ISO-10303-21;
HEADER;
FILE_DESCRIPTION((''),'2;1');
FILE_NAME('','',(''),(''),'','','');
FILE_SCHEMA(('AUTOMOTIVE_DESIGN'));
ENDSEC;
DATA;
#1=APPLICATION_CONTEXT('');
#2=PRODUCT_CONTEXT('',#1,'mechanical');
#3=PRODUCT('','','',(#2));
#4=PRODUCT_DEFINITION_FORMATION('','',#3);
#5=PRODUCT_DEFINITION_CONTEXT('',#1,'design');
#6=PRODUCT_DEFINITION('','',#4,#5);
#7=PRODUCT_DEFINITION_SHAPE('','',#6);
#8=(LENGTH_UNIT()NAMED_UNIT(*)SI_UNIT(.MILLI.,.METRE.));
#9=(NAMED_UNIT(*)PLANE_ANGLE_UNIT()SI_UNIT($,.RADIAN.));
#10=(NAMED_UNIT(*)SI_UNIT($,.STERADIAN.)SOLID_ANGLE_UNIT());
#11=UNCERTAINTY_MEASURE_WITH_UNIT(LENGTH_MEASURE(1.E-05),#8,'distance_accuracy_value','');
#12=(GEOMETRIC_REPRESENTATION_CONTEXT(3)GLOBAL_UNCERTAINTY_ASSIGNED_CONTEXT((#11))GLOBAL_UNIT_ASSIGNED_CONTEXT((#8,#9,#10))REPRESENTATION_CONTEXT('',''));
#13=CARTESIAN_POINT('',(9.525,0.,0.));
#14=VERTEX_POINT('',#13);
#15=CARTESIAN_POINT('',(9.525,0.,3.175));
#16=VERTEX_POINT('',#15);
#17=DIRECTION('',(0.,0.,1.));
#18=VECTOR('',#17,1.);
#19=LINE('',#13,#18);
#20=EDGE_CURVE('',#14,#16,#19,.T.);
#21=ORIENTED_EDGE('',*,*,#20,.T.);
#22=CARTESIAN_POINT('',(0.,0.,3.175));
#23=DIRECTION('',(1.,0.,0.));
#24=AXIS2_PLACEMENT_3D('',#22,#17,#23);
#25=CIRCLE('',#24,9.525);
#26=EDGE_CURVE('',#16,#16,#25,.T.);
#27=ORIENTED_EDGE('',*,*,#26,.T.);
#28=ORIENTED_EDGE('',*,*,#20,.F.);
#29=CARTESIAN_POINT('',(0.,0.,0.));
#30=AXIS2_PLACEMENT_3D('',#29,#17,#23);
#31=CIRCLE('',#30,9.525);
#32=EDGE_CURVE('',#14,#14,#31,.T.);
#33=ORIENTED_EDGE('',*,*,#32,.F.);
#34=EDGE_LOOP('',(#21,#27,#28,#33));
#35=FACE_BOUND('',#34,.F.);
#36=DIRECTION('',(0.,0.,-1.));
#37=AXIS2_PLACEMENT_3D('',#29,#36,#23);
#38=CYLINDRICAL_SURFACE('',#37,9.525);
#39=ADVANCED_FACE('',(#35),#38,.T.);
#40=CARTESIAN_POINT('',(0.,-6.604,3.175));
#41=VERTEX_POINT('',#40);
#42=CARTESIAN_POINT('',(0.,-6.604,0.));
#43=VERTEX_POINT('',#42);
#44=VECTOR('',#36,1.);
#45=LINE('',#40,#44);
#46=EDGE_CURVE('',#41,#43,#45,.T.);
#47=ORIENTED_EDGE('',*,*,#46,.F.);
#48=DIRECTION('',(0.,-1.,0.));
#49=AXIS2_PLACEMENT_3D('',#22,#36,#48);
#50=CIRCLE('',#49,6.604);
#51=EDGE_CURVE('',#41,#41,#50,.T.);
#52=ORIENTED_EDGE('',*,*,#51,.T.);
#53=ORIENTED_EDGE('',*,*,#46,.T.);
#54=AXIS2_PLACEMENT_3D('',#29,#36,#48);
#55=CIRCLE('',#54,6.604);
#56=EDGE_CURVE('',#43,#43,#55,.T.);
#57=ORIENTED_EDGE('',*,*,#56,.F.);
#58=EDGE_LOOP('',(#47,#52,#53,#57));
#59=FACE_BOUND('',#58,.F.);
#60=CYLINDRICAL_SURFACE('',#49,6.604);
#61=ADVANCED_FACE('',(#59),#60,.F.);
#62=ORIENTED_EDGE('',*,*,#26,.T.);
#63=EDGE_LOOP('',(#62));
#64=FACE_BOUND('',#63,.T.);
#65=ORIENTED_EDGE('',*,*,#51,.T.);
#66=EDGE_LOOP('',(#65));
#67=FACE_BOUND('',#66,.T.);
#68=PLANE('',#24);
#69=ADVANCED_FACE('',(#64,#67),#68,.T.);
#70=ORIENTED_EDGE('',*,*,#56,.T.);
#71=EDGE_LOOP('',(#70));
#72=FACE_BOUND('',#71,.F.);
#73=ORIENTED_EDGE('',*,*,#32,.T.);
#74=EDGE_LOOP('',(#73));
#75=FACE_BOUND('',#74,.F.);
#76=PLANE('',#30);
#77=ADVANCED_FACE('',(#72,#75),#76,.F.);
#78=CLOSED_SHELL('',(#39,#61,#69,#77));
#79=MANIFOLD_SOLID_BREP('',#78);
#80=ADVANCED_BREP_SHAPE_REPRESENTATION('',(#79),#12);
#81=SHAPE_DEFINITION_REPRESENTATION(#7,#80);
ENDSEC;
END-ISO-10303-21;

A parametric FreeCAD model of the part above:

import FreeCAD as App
import Part
import Sketcher
Q = App.Units.Quantity

doc = App.newDocument("Part")
body = doc.addObject("PartDesign::Body", "Body")

sketch1 = body.newObject("Sketcher::SketchObject", "Sketch")
sketch1.AttachmentSupport = (doc.getObject("XY_Plane"), [""])
sketch1.MapMode = "FlatFace"
sketch1.addGeometry(Part.Circle(App.Vector(0, 0, 0), App.Vector(0, 0, 1), 10), False)
sketch1.addConstraint([
    Sketcher.Constraint("Coincident", 0, 3, -1, 1),
    Sketcher.Constraint("Diameter", 0, Q("0.75 in")),
])
pad1 = body.newObject("PartDesign::Pad", "Pad")
pad1.Profile = sketch1
pad1.Length = Q("0.125 in")

sketch2 = body.newObject("Sketcher::SketchObject", "Sketch001")
sketch2.AttachmentSupport = (doc.getObject("XY_Plane"), [""])
sketch2.MapMode = "FlatFace"
sketch2.AttachmentOffset = App.Placement(App.Vector(0, 0, 0.125 * 25.4), App.Rotation())
sketch2.addGeometry(Part.Circle(App.Vector(0, 0, 0), App.Vector(0, 0, 1), 6), False)
sketch2.addConstraint([
    Sketcher.Constraint("Coincident", 0, 3, -1, 1),
    Sketcher.Constraint("Diameter", 0, Q("0.51 in")),
])
doc.recompute()
hole = body.newObject("PartDesign::Hole", "Hole")
hole.Profile = sketch2
hole.ThreadType = "None"
hole.Diameter = Q("0.51 in")
hole.DepthType = "Dimension"
hole.Depth = Q("1 in")
hole.DrillPoint = "Angled"
hole.DrillPointAngle = 118

sketch3 = body.newObject("Sketcher::SketchObject", "Sketch002")
sketch3.AttachmentSupport = (doc.getObject("XY_Plane"), [""])
sketch3.MapMode = "FlatFace"
sketch3.AttachmentOffset = App.Placement(App.Vector(0, 0, 0.125 * 25.4), App.Rotation())
sketch3.addGeometry(Part.Circle(App.Vector(0, 0, 0), App.Vector(0, 0, 1), 7), False)
sketch3.addConstraint([
    Sketcher.Constraint("Coincident", 0, 3, -1, 1),
    Sketcher.Constraint("Diameter", 0, Q("0.52 in")),
])
doc.recompute()
hole2 = body.newObject("PartDesign::Hole", "Hole001")
hole2.Profile = sketch3
hole2.ThreadType = "None"
hole2.Diameter = Q("0.52 in")
hole2.DepthType = "Dimension"
hole2.Depth = Q("1 in")
hole2.DrillPoint = "Angled"
hole2.DrillPointAngle = 118

doc.recompute()
